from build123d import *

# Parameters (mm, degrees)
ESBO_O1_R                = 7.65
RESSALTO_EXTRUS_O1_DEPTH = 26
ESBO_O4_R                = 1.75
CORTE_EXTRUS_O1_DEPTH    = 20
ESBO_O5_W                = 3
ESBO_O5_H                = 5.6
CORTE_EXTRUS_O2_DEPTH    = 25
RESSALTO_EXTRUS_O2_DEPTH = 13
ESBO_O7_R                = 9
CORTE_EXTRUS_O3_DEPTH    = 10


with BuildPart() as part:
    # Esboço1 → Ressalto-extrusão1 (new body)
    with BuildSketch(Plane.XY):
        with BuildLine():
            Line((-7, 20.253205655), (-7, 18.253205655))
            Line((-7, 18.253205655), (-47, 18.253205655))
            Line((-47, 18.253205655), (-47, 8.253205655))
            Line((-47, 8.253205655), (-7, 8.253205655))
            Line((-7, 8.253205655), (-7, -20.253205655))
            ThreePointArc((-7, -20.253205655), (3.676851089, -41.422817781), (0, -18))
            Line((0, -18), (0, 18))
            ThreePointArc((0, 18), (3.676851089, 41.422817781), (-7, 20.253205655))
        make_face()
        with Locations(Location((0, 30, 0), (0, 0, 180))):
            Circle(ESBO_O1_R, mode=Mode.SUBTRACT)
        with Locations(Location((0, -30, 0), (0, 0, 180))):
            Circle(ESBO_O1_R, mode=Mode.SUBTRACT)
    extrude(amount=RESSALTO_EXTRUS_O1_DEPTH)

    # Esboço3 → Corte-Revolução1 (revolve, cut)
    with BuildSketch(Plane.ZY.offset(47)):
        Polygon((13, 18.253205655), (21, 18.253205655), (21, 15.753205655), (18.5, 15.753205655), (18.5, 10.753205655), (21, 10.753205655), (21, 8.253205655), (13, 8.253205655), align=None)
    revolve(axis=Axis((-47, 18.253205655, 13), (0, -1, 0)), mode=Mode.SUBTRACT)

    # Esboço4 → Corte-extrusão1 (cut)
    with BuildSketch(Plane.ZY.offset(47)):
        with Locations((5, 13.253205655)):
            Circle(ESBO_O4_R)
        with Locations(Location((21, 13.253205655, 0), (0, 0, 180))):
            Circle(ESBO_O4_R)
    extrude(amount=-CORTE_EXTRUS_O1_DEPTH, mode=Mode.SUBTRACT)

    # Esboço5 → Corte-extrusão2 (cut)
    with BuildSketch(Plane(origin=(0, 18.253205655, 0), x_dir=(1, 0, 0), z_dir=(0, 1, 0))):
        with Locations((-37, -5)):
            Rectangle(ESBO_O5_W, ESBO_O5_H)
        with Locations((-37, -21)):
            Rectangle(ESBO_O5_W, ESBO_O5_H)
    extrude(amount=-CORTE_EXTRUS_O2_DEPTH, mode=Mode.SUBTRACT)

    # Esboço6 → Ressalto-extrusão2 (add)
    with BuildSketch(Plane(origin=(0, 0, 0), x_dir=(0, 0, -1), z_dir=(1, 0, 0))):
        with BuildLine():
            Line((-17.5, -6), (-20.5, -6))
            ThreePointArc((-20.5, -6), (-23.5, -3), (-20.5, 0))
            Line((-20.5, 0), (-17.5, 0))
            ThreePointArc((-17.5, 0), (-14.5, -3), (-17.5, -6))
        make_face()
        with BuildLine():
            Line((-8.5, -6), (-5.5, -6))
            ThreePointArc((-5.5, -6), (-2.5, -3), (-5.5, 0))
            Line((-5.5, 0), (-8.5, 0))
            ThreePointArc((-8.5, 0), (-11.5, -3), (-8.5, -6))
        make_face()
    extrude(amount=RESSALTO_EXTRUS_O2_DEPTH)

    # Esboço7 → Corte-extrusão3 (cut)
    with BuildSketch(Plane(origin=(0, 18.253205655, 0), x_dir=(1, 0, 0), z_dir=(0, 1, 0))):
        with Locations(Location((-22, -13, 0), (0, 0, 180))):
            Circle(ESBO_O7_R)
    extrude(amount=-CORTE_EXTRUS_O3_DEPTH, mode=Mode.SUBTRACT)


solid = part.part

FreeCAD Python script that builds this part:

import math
import FreeCAD as App
import Part
import Sketcher
from FreeCAD import Vector

doc = App.newDocument("Part")
body = doc.addObject("PartDesign::Body", "Body")

sketch1 = doc.addObject("Sketcher::SketchObject", "Sketch")
body.addObject(sketch1)
sketch1.AttachmentSupport = (doc.XY_Plane, [""])
sketch1.MapMode = "FlatFace"
sketch1.addGeometry([
    Part.LineSegment(Vector(-7, 20.3, 0), Vector(-7, 18.3, 0)),
    Part.LineSegment(Vector(-7, 18.3, 0), Vector(-47, 18.3, 0)),
    Part.LineSegment(Vector(-47, 18.3, 0), Vector(-47, 8.3, 0)),
    Part.LineSegment(Vector(-47, 8.3, 0), Vector(-7, 8.3, 0)),
    Part.LineSegment(Vector(-7, 8.3, 0), Vector(-7, -20.3, 0)),
    Part.ArcOfCircle(Part.Circle(Vector(0, -30, 0), Vector(0, 0, 1), 12), math.radians(126), math.radians(450)),
    Part.LineSegment(Vector(0, -18, 0), Vector(0, 18, 0)),
    Part.ArcOfCircle(Part.Circle(Vector(0, 30, 0), Vector(0, 0, 1), 12), math.radians(-90), math.radians(234)),
    Part.Circle(Vector(0, -30, 0), Vector(0, 0, 1), 7.7),
    Part.Circle(Vector(0, 30, 0), Vector(0, 0, 1), 7.7),
], False)
sketch1.addConstraint([
    Sketcher.Constraint("Coincident", 0, 2, 1, 1),
    Sketcher.Constraint("Coincident", 1, 2, 2, 1),
    Sketcher.Constraint("Coincident", 2, 2, 3, 1),
    Sketcher.Constraint("Coincident", 3, 2, 4, 1),
    Sketcher.Constraint("Coincident", 4, 2, 5, 1),
    Sketcher.Constraint("Coincident", 5, 2, 6, 1),
    Sketcher.Constraint("Coincident", 6, 2, 7, 1),
    Sketcher.Constraint("Coincident", 7, 2, 0, 1),
    Sketcher.Constraint("Vertical", 0),
    Sketcher.Constraint("Horizontal", 1),
    Sketcher.Constraint("Vertical", 2),
    Sketcher.Constraint("Horizontal", 3),
    Sketcher.Constraint("Vertical", 4),
    Sketcher.Constraint("Vertical", 6),
    Sketcher.Constraint("Coincident", 8, 3, 5, 3),
    Sketcher.Constraint("Coincident", 9, 3, 7, 3),
    Sketcher.Constraint("Equal", 5, 7),
    Sketcher.Constraint("Equal", 8, 9),
    Sketcher.Constraint("Symmetric", 5, 3, 7, 3, -1, 1),
    Sketcher.Constraint("Symmetric", 4, 2, 7, 2, -1),
    Sketcher.Constraint("PointOnObject", 5, 2, -2),
    Sketcher.Constraint("Radius", 5, 12.0),
    Sketcher.Constraint("Diameter", 8, 15.3),
    Sketcher.Constraint("DistanceX", 1, 2, 1, 1, 40.0),
    Sketcher.Constraint("DistanceY", 0, 2, 0, 1, 2.0),
    Sketcher.Constraint("DistanceY", 2, 2, 2, 1, 10.0),
    Sketcher.Constraint("DistanceY", 6, 1, 6, 2, 36.0),
    Sketcher.Constraint("DistanceX", 0, 2, -1, 1, 7.0),
])
pad1 = doc.addObject("PartDesign::Pad", "Pad")
body.addObject(pad1)
pad1.Profile = sketch1
pad1.Length = 26

sketch2 = doc.addObject("Sketcher::SketchObject", "Sketch001")
body.addObject(sketch2)
sketch2.AttachmentSupport = (doc.YZ_Plane, [""])
sketch2.MapMode = "FlatFace"
sketch2.AttachmentOffset = App.Placement(Vector(0, 0, -47), App.Rotation())
sketch2.addGeometry([
    Part.LineSegment(Vector(18.3, 21, 0), Vector(18.3, 13, 0)),
    Part.LineSegment(Vector(18.3, 13, 0), Vector(8.3, 13, 0)),
    Part.LineSegment(Vector(8.3, 13, 0), Vector(8.3, 21, 0)),
    Part.LineSegment(Vector(8.3, 21, 0), Vector(10.8, 21, 0)),
    Part.LineSegment(Vector(10.8, 21, 0), Vector(10.8, 18.5, 0)),
    Part.LineSegment(Vector(10.8, 18.5, 0), Vector(15.8, 18.5, 0)),
    Part.LineSegment(Vector(15.8, 18.5, 0), Vector(15.8, 21, 0)),
    Part.LineSegment(Vector(15.8, 21, 0), Vector(18.3, 21, 0)),
], False)
sketch2.addGeometry(Part.LineSegment(Vector(18.3, 13, 0), Vector(8.3, 13, 0)), True)
sketch2.addConstraint([
    Sketcher.Constraint("Coincident", 0, 2, 1, 1),
    Sketcher.Constraint("Coincident", 1, 2, 2, 1),
    Sketcher.Constraint("Coincident", 2, 2, 3, 1),
    Sketcher.Constraint("Coincident", 3, 2, 4, 1),
    Sketcher.Constraint("Coincident", 4, 2, 5, 1),
    Sketcher.Constraint("Coincident", 5, 2, 6, 1),
    Sketcher.Constraint("Coincident", 6, 2, 7, 1),
    Sketcher.Constraint("Coincident", 7, 2, 0, 1),
    Sketcher.Constraint("Vertical", 0),
    Sketcher.Constraint("Horizontal", 1),
    Sketcher.Constraint("Vertical", 2),
    Sketcher.Constraint("Horizontal", 3),
    Sketcher.Constraint("Vertical", 4),
    Sketcher.Constraint("Horizontal", 5),
    Sketcher.Constraint("Vertical", 6),
    Sketcher.Constraint("Horizontal", 7),
    Sketcher.Constraint("Horizontal", 8),
    Sketcher.Constraint("Coincident", 8, 1, 0, 2),
    Sketcher.Constraint("Horizontal", 3, 2, 6, 2),
    Sketcher.Constraint("Vertical", 2, 2, 8, 2),
    Sketcher.Constraint("Equal", 3, 7),
    Sketcher.Constraint("Equal", 7, 4),
    Sketcher.Constraint("DistanceX", 1, 2, 1, 1, 10.0),
    Sketcher.Constraint("DistanceX", 5, 1, 5, 2, 5.0),
    Sketcher.Constraint("DistanceY", 0, 2, 0, 1, 8.0),
    Sketcher.Constraint("DistanceY", -1, 1, 0, 2, 13.0),
    Sketcher.Constraint("DistanceX", -1, 1, 0, 2, 18.253206),
])
groove = doc.addObject("PartDesign::Groove", "Groove")
body.addObject(groove)
groove.Profile = sketch2
groove.ReferenceAxis = (sketch2, ["Axis0"])
groove.Angle = 360

sketch3 = doc.addObject("Sketcher::SketchObject", "Sketch002")
body.addObject(sketch3)
sketch3.AttachmentSupport = (doc.YZ_Plane, [""])
sketch3.MapMode = "FlatFace"
sketch3.AttachmentOffset = App.Placement(Vector(0, 0, -47), App.Rotation())
sketch3.addGeometry([
    Part.Circle(Vector(13.3, 5, 0), Vector(0, 0, 1), 1.8),
    Part.Circle(Vector(13.3, 21, 0), Vector(0, 0, 1), 1.8),
], False)
sketch3.addConstraint([
    Sketcher.Constraint("Equal", 0, 1),
    Sketcher.Constraint("Vertical", 0, 3, 1, 3),
    Sketcher.Constraint("Diameter", 0, 3.5),
    Sketcher.Constraint("DistanceY", -1, 1, 0, 3, 5.0),
    Sketcher.Constraint("DistanceY", -1, 1, 1, 3, 21.0),
    Sketcher.Constraint("DistanceX", -1, 1, 0, 3, 13.253206),
])
pocket1 = doc.addObject("PartDesign::Pocket", "Pocket")
body.addObject(pocket1)
pocket1.Profile = sketch3
pocket1.Length = 20
pocket1.Reversed = True

sketch4 = doc.addObject("Sketcher::SketchObject", "Sketch003")
body.addObject(sketch4)
sketch4.AttachmentSupport = (doc.XZ_Plane, [""])
sketch4.MapMode = "FlatFace"
sketch4.AttachmentOffset = App.Placement(Vector(0, 0, -18.253206), App.Rotation())
sketch4.addGeometry([
    Part.LineSegment(Vector(-38.5, 2.2, 0), Vector(-38.5, 7.8, 0)),
    Part.LineSegment(Vector(-38.5, 7.8, 0), Vector(-35.5, 7.8, 0)),
    Part.LineSegment(Vector(-35.5, 7.8, 0), Vector(-35.5, 2.2, 0)),
    Part.LineSegment(Vector(-35.5, 2.2, 0), Vector(-38.5, 2.2, 0)),
    Part.LineSegment(Vector(-38.5, 18.2, 0), Vector(-38.5, 23.8, 0)),
    Part.LineSegment(Vector(-38.5, 23.8, 0), Vector(-35.5, 23.8, 0)),
    Part.LineSegment(Vector(-35.5, 23.8, 0), Vector(-35.5, 18.2, 0)),
    Part.LineSegment(Vector(-35.5, 18.2, 0), Vector(-38.5, 18.2, 0)),
], False)
sketch4.addConstraint([
    Sketcher.Constraint("Coincident", 0, 2, 1, 1),
    Sketcher.Constraint("Coincident", 1, 2, 2, 1),
    Sketcher.Constraint("Coincident", 2, 2, 3, 1),
    Sketcher.Constraint("Coincident", 3, 2, 0, 1),
    Sketcher.Constraint("Coincident", 4, 2, 5, 1),
    Sketcher.Constraint("Coincident", 5, 2, 6, 1),
    Sketcher.Constraint("Coincident", 6, 2, 7, 1),
    Sketcher.Constraint("Coincident", 7, 2, 4, 1),
    Sketcher.Constraint("Vertical", 0),
    Sketcher.Constraint("Horizontal", 1),
    Sketcher.Constraint("Vertical", 2),
    Sketcher.Constraint("Horizontal", 3),
    Sketcher.Constraint("Vertical", 4),
    Sketcher.Constraint("Horizontal", 5),
    Sketcher.Constraint("Vertical", 6),
    Sketcher.Constraint("Horizontal", 7),
    Sketcher.Constraint("Vertical", 3, 2, 4, 2),
    Sketcher.Constraint("Vertical", 2, 2, 5, 2),
    Sketcher.Constraint("Equal", 2, 4),
    Sketcher.Constraint("DistanceX", 1, 1, 1, 2, 3.0),
    Sketcher.Constraint("DistanceY", 0, 1, 0, 2, 5.6),
    Sketcher.Constraint("DistanceY", 0, 2, 4, 2, 16.0),
    Sketcher.Constraint("DistanceX", 0, 2, -1, 1, 38.5),
    Sketcher.Constraint("DistanceY", -1, 1, 0, 2, 7.8),
])
pocket2 = doc.addObject("PartDesign::Pocket", "Pocket001")
body.addObject(pocket2)
pocket2.Profile = sketch4
pocket2.Length = 25
pocket2.Reversed = True

sketch5 = doc.addObject("Sketcher::SketchObject", "Sketch004")
body.addObject(sketch5)
sketch5.AttachmentSupport = (doc.YZ_Plane, [""])
sketch5.MapMode = "FlatFace"
sketch5.addGeometry([
    Part.LineSegment(Vector(-6, 20.5, 0), Vector(-6, 17.5, 0)),
    Part.ArcOfCircle(Part.Circle(Vector(-3, 17.5, 0), Vector(0, 0, 1), 3), math.radians(180), math.radians(360)),
    Part.LineSegment(Vector(0, 17.5, 0), Vector(0, 20.5, 0)),
    Part.ArcOfCircle(Part.Circle(Vector(-3, 20.5, 0), Vector(0, 0, 1), 3), math.radians(0), math.radians(180)),
    Part.LineSegment(Vector(-6, 8.5, 0), Vector(-6, 5.5, 0)),
    Part.ArcOfCircle(Part.Circle(Vector(-3, 5.5, 0), Vector(0, 0, 1), 3), math.radians(180), math.radians(360)),
    Part.LineSegment(Vector(0, 5.5, 0), Vector(0, 8.5, 0)),
    Part.ArcOfCircle(Part.Circle(Vector(-3, 8.5, 0), Vector(0, 0, 1), 3), math.radians(0), math.radians(180)),
], False)
sketch5.addConstraint([
    Sketcher.Constraint("Tangent", 0, 2, 1, 1),
    Sketcher.Constraint("Tangent", 1, 2, 2, 1),
    Sketcher.Constraint("Tangent", 2, 2, 3, 1),
    Sketcher.Constraint("Tangent", 3, 2, 0, 1),
    Sketcher.Constraint("Tangent", 4, 2, 5, 1),
    Sketcher.Constraint("Tangent", 5, 2, 6, 1),
    Sketcher.Constraint("Tangent", 6, 2, 7, 1),
    Sketcher.Constraint("Tangent", 7, 2, 4, 1),
    Sketcher.Constraint("Vertical", 0),
    Sketcher.Constraint("Vertical", 2),
    Sketcher.Constraint("Vertical", 4),
    Sketcher.Constraint("Vertical", 6),
    Sketcher.Constraint("Equal", 3, 5),
    Sketcher.Constraint("PointOnObject", 1, 2, -2),
    Sketcher.Constraint("PointOnObject", 5, 2, -2),
    Sketcher.Constraint("Equal", 2, 4),
    Sketcher.Constraint("Radius", 1, 3.0),
    Sketcher.Constraint("DistanceY", 0, 2, 0, 1, 3.0),
    Sketcher.Constraint("DistanceY", 5, 3, 1, 3, 12.0),
    Sketcher.Constraint("DistanceY", -1, 1, 1, 3, 17.5),
])
pad2 = doc.addObject("PartDesign::Pad", "Pad001")
body.addObject(pad2)
pad2.Profile = sketch5
pad2.Length = 13

sketch6 = doc.addObject("Sketcher::SketchObject", "Sketch005")
body.addObject(sketch6)
sketch6.AttachmentSupport = (doc.XZ_Plane, [""])
sketch6.MapMode = "FlatFace"
sketch6.AttachmentOffset = App.Placement(Vector(0, 0, -18.253206), App.Rotation())
sketch6.addGeometry(Part.Circle(Vector(-22, 13, 0), Vector(0, 0, 1), 9), False)
sketch6.addConstraint([
    Sketcher.Constraint("Diameter", 0, 18.0),
    Sketcher.Constraint("DistanceX", 0, 3, -1, 1, 22.0),
    Sketcher.Constraint("DistanceY", -1, 1, 0, 3, 13.0),
])
pocket3 = doc.addObject("PartDesign::Pocket", "Pocket002")
body.addObject(pocket3)
pocket3.Profile = sketch6
pocket3.Length = 10
pocket3.Reversed = True

doc.recompute()
